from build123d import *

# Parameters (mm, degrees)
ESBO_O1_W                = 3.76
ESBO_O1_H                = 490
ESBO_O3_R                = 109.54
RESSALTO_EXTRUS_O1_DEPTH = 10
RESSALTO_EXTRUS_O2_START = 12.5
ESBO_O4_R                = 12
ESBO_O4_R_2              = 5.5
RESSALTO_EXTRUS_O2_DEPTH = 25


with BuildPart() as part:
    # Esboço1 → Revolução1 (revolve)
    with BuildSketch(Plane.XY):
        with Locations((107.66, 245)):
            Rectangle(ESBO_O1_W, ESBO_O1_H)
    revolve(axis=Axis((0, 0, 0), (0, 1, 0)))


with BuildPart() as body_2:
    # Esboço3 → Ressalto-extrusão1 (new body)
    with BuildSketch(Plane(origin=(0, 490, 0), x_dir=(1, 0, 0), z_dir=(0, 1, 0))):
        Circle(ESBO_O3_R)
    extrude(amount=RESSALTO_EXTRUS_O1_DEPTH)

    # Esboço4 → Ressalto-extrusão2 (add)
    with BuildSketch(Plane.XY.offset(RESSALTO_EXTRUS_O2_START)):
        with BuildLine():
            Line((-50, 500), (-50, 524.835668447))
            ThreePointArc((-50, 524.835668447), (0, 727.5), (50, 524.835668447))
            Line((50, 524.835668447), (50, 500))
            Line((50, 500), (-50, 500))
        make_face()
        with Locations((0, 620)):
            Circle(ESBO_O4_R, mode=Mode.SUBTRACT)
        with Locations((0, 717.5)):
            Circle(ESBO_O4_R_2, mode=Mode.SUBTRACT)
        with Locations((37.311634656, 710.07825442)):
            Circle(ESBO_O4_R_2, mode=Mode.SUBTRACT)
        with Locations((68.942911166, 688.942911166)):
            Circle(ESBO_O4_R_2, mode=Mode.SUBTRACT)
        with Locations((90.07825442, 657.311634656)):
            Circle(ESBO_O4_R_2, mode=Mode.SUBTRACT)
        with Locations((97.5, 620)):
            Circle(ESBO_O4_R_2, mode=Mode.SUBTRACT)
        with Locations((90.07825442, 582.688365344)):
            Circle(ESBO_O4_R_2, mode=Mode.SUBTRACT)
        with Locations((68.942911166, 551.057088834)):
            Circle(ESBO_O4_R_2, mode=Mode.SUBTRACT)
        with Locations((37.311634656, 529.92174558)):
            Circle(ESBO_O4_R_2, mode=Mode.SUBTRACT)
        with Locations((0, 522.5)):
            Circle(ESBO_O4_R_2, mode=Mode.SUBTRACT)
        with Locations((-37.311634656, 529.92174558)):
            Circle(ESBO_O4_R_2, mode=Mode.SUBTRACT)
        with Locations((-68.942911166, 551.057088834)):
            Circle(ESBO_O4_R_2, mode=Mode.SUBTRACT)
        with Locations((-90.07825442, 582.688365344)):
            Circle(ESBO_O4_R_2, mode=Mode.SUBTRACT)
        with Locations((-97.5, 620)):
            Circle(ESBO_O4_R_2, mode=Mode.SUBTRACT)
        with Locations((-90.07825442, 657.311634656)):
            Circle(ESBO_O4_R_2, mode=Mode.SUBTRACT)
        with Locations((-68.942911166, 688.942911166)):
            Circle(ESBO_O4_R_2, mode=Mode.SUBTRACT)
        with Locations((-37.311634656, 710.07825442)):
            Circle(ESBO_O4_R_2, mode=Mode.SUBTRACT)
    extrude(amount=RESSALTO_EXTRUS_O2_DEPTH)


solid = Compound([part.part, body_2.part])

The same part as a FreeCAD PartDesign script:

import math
import FreeCAD as App
import Part
import Sketcher
from FreeCAD import Vector
Q = App.Units.Quantity

doc = App.newDocument("Part")
params = doc.addObject("Spreadsheet::Sheet", "Params")
for row, (alias, value) in enumerate([
    ("sketch1_height", "490 mm"),
    ("sketch1_width", "3.76 mm"),
    ("revolution_angle", "360 deg"),
    ("sketch2_diameter", "219.08 mm"),
    ("pad1_length", "10 mm"),
    ("sketch3_diameter", "11 mm"),
    ("sketch3_diameter2", "24 mm"),
    ("sketch3_radius", "107.5 mm"),
    ("sketch3_width", "100 mm"),
    ("pad2_length", "25 mm"),
], start=1):
    params.set(f"A{row}", alias)
    params.set(f"B{row}", "=" + value)
    params.setAlias(f"B{row}", alias)

body = doc.addObject("PartDesign::Body", "Body")

sketch1 = doc.addObject("Sketcher::SketchObject", "Sketch")
body.addObject(sketch1)
sketch1.AttachmentSupport = (doc.XY_Plane, [""])
sketch1.MapMode = "FlatFace"
sketch1.addGeometry([
    Part.LineSegment(Vector(105.8, 490, 0), Vector(105.8, 0, 0)),
    Part.LineSegment(Vector(105.8, 0, 0), Vector(109.5, 0, 0)),
    Part.LineSegment(Vector(109.5, 0, 0), Vector(109.5, 490, 0)),
    Part.LineSegment(Vector(109.5, 490, 0), Vector(105.8, 490, 0)),
], False)
sketch1.addConstraint([
    Sketcher.Constraint("Coincident", 0, 2, 1, 1),
    Sketcher.Constraint("Coincident", 1, 2, 2, 1),
    Sketcher.Constraint("Coincident", 2, 2, 3, 1),
    Sketcher.Constraint("Coincident", 3, 2, 0, 1),
    Sketcher.Constraint("Vertical", 0),
    Sketcher.Constraint("Horizontal", 1),
    Sketcher.Constraint("Vertical", 2),
    Sketcher.Constraint("Horizontal", 3),
    Sketcher.Constraint("PointOnObject", 0, 2, -1),
    Sketcher.Constraint("DistanceY", 0, 2, 0, 1, Q("490 mm")),
    Sketcher.Constraint("DistanceX", 1, 1, 1, 2, Q("3.76 mm")),
    Sketcher.Constraint("DistanceX", -1, 1, 0, 2, Q("105.78 mm")),
])
sketch1.setExpression("Constraints[9]", "Params.sketch1_height")
sketch1.setExpression("Constraints[10]", "Params.sketch1_width")
revolution = doc.addObject("PartDesign::Revolution", "Revolution")
body.addObject(revolution)
revolution.Profile = sketch1
revolution.ReferenceAxis = (sketch1, ["V_Axis"])
revolution.setExpression("Angle", "Params.revolution_angle")
body2 = doc.addObject("PartDesign::Body", "Body001")

sketch2 = doc.addObject("Sketcher::SketchObject", "Sketch001")
body2.addObject(sketch2)
sketch2.AttachmentSupport = (doc.getObject("XZ_Plane001"), [""])
sketch2.MapMode = "FlatFace"
sketch2.AttachmentOffset = App.Placement(Vector(0, 0, -490), App.Rotation())
sketch2.addGeometry(Part.Circle(Vector(0, 0, 0), Vector(0, 0, 1), 110), False)
sketch2.addConstraint([
    Sketcher.Constraint("Coincident", 0, 3, -1, 1),
    Sketcher.Constraint("Diameter", 0, Q("219.08 mm")),
])
sketch2.setExpression("Constraints[1]", "Params.sketch2_diameter")
pad1 = doc.addObject("PartDesign::Pad", "Pad")
body2.addObject(pad1)
pad1.Profile = sketch2
pad1.setExpression("Length", "Params.pad1_length")
pad1.Reversed = True

sketch3 = doc.addObject("Sketcher::SketchObject", "Sketch002")
body2.addObject(sketch3)
sketch3.AttachmentSupport = (doc.getObject("XY_Plane001"), [""])
sketch3.MapMode = "FlatFace"
sketch3.AttachmentOffset = App.Placement(Vector(0, 0, 12.5), App.Rotation())
sketch3.addGeometry([
    Part.LineSegment(Vector(-50, 525, 0), Vector(-50, 500, 0)),
    Part.LineSegment(Vector(-50, 500, 0), Vector(50, 500, 0)),
    Part.LineSegment(Vector(50, 500, 0), Vector(50, 525, 0)),
    Part.ArcOfCircle(Part.Circle(Vector(0, 620, 0), Vector(0, 0, 1), 108), math.radians(-62), math.radians(242)),
    Part.Circle(Vector(69, 551, 0), Vector(0, 0, 1), 6),
    Part.Circle(Vector(37, 530, 0), Vector(0, 0, 1), 6),
    Part.Circle(Vector(0, 522, 0), Vector(0, 0, 1), 6),
    Part.Circle(Vector(90, 583, 0), Vector(0, 0, 1), 6),
    Part.Circle(Vector(98, 620, 0), Vector(0, 0, 1), 6),
    Part.Circle(Vector(0, 620, 0), Vector(0, 0, 1), 12),
    Part.Circle(Vector(-37, 530, 0), Vector(0, 0, 1), 6),
    Part.Circle(Vector(-69, 551, 0), Vector(0, 0, 1), 6),
    Part.Circle(Vector(-90, 583, 0), Vector(0, 0, 1), 6),
    Part.Circle(Vector(-98, 620, 0), Vector(0, 0, 1), 6),
    Part.Circle(Vector(90, 657, 0), Vector(0, 0, 1), 6),
    Part.Circle(Vector(69, 689, 0), Vector(0, 0, 1), 6),
    Part.Circle(Vector(37, 710, 0), Vector(0, 0, 1), 6),
    Part.Circle(Vector(0, 718, 0), Vector(0, 0, 1), 6),
    Part.Circle(Vector(-90, 657, 0), Vector(0, 0, 1), 6),
    Part.Circle(Vector(-37, 710, 0), Vector(0, 0, 1), 6),
    Part.Circle(Vector(-69, 689, 0), Vector(0, 0, 1), 6),
], False)
sketch3.addConstraint([
    Sketcher.Constraint("Coincident", 0, 2, 1, 1),
    Sketcher.Constraint("Coincident", 1, 2, 2, 1),
    Sketcher.Constraint("Coincident", 2, 2, 3, 1),
    Sketcher.Constraint("Coincident", 3, 2, 0, 1),
    Sketcher.Constraint("Vertical", 0),
    Sketcher.Constraint("Horizontal", 1),
    Sketcher.Constraint("Vertical", 2),
    Sketcher.Constraint("Coincident", 9, 3, 3, 3),
    Sketcher.Constraint("Equal", 4, 5),
    Sketcher.Constraint("Equal", 5, 6),
    Sketcher.Constraint("Equal", 6, 7),
    Sketcher.Constraint("Equal", 7, 8),
    Sketcher.Constraint("Equal", 8, 10),
    Sketcher.Constraint("Equal", 10, 11),
    Sketcher.Constraint("Equal", 11, 12),
    Sketcher.Constraint("Equal", 12, 13),
    Sketcher.Constraint("Equal", 13, 14),
    Sketcher.Constraint("Equal", 14, 15),
    Sketcher.Constraint("Equal", 15, 16),
    Sketcher.Constraint("Equal", 16, 17),
    Sketcher.Constraint("Equal", 17, 18),
    Sketcher.Constraint("Equal", 18, 19),
    Sketcher.Constraint("Equal", 19, 20),
    Sketcher.Constraint("Symmetric", 5, 3, 10, 3, -2),
    Sketcher.Constraint("Symmetric", 4, 3, 11, 3, -2),
    Sketcher.Constraint("Symmetric", 7, 3, 12, 3, -2),
    Sketcher.Constraint("Symmetric", 8, 3, 13, 3, -2),
    Sketcher.Constraint("Symmetric", 14, 3, 18, 3, -2),
    Sketcher.Constraint("Symmetric", 16, 3, 19, 3, -2),
    Sketcher.Constraint("Symmetric", 15, 3, 20, 3, -2),
    Sketcher.Constraint("Symmetric", 2, 2, 3, 2, -2),
    Sketcher.Constraint("PointOnObject", 6, 3, -2),
    Sketcher.Constraint("PointOnObject", 17, 3, -2),
    Sketcher.Constraint("Horizontal", 3, 3, 8, 3),
    Sketcher.Constraint("Vertical", 7, 3, 14, 3),
    Sketcher.Constraint("Vertical", 4, 3, 15, 3),
    Sketcher.Constraint("Vertical", 5, 3, 16, 3),
    Sketcher.Constraint("Diameter", 4, Q("11 mm")),
    Sketcher.Constraint("Diameter", 9, Q("24 mm")),
    Sketcher.Constraint("Radius", 3, Q("107.5 mm")),
    Sketcher.Constraint("DistanceX", 1, 1, 1, 2, Q("100 mm")),
    Sketcher.Constraint("DistanceY", -1, 1, 3, 3, Q("620 mm")),
    Sketcher.Constraint("DistanceY", -1, 1, 0, 2, Q("500 mm")),
    Sketcher.Constraint("DistanceY", -1, 1, 6, 3, Q("522.5 mm")),
    Sketcher.Constraint("DistanceX", -1, 1, 8, 3, Q("97.5 mm")),
    Sketcher.Constraint("DistanceY", -1, 1, 17, 3, Q("717.5 mm")),
    Sketcher.Constraint("DistanceX", -1, 1, 4, 3, Q("68.942911 mm")),
    Sketcher.Constraint("DistanceY", -1, 1, 4, 3, Q("551.057089 mm")),
    Sketcher.Constraint("DistanceY", -1, 1, 15, 3, Q("688.942911 mm")),
    Sketcher.Constraint("DistanceX", 5, 3, 7, 3, Q("52.76662 mm")),
    Sketcher.Constraint("DistanceY", 5, 3, 7, 3, Q("52.76662 mm")),
    Sketcher.Constraint("DistanceX", 10, 3, 5, 3, Q("74.623269 mm")),
    Sketcher.Constraint("DistanceY", 7, 3, 14, 3, Q("74.623269 mm")),
    Sketcher.Constraint("DistanceY", 14, 3, 16, 3, Q("52.76662 mm")),
    Sketcher.Constraint("DistanceY", -1, 1, 5, 3, Q("529.921746 mm")),
])
sketch3.setExpression("Constraints[37]", "Params.sketch3_diameter")
sketch3.setExpression("Constraints[38]", "Params.sketch3_diameter2")
sketch3.setExpression("Constraints[39]", "Params.sketch3_radius")
sketch3.setExpression("Constraints[40]", "Params.sketch3_width")
pad2 = doc.addObject("PartDesign::Pad", "Pad001")
body2.addObject(pad2)
pad2.Profile = sketch3
pad2.setExpression("Length", "Params.pad2_length")

doc.recompute()
